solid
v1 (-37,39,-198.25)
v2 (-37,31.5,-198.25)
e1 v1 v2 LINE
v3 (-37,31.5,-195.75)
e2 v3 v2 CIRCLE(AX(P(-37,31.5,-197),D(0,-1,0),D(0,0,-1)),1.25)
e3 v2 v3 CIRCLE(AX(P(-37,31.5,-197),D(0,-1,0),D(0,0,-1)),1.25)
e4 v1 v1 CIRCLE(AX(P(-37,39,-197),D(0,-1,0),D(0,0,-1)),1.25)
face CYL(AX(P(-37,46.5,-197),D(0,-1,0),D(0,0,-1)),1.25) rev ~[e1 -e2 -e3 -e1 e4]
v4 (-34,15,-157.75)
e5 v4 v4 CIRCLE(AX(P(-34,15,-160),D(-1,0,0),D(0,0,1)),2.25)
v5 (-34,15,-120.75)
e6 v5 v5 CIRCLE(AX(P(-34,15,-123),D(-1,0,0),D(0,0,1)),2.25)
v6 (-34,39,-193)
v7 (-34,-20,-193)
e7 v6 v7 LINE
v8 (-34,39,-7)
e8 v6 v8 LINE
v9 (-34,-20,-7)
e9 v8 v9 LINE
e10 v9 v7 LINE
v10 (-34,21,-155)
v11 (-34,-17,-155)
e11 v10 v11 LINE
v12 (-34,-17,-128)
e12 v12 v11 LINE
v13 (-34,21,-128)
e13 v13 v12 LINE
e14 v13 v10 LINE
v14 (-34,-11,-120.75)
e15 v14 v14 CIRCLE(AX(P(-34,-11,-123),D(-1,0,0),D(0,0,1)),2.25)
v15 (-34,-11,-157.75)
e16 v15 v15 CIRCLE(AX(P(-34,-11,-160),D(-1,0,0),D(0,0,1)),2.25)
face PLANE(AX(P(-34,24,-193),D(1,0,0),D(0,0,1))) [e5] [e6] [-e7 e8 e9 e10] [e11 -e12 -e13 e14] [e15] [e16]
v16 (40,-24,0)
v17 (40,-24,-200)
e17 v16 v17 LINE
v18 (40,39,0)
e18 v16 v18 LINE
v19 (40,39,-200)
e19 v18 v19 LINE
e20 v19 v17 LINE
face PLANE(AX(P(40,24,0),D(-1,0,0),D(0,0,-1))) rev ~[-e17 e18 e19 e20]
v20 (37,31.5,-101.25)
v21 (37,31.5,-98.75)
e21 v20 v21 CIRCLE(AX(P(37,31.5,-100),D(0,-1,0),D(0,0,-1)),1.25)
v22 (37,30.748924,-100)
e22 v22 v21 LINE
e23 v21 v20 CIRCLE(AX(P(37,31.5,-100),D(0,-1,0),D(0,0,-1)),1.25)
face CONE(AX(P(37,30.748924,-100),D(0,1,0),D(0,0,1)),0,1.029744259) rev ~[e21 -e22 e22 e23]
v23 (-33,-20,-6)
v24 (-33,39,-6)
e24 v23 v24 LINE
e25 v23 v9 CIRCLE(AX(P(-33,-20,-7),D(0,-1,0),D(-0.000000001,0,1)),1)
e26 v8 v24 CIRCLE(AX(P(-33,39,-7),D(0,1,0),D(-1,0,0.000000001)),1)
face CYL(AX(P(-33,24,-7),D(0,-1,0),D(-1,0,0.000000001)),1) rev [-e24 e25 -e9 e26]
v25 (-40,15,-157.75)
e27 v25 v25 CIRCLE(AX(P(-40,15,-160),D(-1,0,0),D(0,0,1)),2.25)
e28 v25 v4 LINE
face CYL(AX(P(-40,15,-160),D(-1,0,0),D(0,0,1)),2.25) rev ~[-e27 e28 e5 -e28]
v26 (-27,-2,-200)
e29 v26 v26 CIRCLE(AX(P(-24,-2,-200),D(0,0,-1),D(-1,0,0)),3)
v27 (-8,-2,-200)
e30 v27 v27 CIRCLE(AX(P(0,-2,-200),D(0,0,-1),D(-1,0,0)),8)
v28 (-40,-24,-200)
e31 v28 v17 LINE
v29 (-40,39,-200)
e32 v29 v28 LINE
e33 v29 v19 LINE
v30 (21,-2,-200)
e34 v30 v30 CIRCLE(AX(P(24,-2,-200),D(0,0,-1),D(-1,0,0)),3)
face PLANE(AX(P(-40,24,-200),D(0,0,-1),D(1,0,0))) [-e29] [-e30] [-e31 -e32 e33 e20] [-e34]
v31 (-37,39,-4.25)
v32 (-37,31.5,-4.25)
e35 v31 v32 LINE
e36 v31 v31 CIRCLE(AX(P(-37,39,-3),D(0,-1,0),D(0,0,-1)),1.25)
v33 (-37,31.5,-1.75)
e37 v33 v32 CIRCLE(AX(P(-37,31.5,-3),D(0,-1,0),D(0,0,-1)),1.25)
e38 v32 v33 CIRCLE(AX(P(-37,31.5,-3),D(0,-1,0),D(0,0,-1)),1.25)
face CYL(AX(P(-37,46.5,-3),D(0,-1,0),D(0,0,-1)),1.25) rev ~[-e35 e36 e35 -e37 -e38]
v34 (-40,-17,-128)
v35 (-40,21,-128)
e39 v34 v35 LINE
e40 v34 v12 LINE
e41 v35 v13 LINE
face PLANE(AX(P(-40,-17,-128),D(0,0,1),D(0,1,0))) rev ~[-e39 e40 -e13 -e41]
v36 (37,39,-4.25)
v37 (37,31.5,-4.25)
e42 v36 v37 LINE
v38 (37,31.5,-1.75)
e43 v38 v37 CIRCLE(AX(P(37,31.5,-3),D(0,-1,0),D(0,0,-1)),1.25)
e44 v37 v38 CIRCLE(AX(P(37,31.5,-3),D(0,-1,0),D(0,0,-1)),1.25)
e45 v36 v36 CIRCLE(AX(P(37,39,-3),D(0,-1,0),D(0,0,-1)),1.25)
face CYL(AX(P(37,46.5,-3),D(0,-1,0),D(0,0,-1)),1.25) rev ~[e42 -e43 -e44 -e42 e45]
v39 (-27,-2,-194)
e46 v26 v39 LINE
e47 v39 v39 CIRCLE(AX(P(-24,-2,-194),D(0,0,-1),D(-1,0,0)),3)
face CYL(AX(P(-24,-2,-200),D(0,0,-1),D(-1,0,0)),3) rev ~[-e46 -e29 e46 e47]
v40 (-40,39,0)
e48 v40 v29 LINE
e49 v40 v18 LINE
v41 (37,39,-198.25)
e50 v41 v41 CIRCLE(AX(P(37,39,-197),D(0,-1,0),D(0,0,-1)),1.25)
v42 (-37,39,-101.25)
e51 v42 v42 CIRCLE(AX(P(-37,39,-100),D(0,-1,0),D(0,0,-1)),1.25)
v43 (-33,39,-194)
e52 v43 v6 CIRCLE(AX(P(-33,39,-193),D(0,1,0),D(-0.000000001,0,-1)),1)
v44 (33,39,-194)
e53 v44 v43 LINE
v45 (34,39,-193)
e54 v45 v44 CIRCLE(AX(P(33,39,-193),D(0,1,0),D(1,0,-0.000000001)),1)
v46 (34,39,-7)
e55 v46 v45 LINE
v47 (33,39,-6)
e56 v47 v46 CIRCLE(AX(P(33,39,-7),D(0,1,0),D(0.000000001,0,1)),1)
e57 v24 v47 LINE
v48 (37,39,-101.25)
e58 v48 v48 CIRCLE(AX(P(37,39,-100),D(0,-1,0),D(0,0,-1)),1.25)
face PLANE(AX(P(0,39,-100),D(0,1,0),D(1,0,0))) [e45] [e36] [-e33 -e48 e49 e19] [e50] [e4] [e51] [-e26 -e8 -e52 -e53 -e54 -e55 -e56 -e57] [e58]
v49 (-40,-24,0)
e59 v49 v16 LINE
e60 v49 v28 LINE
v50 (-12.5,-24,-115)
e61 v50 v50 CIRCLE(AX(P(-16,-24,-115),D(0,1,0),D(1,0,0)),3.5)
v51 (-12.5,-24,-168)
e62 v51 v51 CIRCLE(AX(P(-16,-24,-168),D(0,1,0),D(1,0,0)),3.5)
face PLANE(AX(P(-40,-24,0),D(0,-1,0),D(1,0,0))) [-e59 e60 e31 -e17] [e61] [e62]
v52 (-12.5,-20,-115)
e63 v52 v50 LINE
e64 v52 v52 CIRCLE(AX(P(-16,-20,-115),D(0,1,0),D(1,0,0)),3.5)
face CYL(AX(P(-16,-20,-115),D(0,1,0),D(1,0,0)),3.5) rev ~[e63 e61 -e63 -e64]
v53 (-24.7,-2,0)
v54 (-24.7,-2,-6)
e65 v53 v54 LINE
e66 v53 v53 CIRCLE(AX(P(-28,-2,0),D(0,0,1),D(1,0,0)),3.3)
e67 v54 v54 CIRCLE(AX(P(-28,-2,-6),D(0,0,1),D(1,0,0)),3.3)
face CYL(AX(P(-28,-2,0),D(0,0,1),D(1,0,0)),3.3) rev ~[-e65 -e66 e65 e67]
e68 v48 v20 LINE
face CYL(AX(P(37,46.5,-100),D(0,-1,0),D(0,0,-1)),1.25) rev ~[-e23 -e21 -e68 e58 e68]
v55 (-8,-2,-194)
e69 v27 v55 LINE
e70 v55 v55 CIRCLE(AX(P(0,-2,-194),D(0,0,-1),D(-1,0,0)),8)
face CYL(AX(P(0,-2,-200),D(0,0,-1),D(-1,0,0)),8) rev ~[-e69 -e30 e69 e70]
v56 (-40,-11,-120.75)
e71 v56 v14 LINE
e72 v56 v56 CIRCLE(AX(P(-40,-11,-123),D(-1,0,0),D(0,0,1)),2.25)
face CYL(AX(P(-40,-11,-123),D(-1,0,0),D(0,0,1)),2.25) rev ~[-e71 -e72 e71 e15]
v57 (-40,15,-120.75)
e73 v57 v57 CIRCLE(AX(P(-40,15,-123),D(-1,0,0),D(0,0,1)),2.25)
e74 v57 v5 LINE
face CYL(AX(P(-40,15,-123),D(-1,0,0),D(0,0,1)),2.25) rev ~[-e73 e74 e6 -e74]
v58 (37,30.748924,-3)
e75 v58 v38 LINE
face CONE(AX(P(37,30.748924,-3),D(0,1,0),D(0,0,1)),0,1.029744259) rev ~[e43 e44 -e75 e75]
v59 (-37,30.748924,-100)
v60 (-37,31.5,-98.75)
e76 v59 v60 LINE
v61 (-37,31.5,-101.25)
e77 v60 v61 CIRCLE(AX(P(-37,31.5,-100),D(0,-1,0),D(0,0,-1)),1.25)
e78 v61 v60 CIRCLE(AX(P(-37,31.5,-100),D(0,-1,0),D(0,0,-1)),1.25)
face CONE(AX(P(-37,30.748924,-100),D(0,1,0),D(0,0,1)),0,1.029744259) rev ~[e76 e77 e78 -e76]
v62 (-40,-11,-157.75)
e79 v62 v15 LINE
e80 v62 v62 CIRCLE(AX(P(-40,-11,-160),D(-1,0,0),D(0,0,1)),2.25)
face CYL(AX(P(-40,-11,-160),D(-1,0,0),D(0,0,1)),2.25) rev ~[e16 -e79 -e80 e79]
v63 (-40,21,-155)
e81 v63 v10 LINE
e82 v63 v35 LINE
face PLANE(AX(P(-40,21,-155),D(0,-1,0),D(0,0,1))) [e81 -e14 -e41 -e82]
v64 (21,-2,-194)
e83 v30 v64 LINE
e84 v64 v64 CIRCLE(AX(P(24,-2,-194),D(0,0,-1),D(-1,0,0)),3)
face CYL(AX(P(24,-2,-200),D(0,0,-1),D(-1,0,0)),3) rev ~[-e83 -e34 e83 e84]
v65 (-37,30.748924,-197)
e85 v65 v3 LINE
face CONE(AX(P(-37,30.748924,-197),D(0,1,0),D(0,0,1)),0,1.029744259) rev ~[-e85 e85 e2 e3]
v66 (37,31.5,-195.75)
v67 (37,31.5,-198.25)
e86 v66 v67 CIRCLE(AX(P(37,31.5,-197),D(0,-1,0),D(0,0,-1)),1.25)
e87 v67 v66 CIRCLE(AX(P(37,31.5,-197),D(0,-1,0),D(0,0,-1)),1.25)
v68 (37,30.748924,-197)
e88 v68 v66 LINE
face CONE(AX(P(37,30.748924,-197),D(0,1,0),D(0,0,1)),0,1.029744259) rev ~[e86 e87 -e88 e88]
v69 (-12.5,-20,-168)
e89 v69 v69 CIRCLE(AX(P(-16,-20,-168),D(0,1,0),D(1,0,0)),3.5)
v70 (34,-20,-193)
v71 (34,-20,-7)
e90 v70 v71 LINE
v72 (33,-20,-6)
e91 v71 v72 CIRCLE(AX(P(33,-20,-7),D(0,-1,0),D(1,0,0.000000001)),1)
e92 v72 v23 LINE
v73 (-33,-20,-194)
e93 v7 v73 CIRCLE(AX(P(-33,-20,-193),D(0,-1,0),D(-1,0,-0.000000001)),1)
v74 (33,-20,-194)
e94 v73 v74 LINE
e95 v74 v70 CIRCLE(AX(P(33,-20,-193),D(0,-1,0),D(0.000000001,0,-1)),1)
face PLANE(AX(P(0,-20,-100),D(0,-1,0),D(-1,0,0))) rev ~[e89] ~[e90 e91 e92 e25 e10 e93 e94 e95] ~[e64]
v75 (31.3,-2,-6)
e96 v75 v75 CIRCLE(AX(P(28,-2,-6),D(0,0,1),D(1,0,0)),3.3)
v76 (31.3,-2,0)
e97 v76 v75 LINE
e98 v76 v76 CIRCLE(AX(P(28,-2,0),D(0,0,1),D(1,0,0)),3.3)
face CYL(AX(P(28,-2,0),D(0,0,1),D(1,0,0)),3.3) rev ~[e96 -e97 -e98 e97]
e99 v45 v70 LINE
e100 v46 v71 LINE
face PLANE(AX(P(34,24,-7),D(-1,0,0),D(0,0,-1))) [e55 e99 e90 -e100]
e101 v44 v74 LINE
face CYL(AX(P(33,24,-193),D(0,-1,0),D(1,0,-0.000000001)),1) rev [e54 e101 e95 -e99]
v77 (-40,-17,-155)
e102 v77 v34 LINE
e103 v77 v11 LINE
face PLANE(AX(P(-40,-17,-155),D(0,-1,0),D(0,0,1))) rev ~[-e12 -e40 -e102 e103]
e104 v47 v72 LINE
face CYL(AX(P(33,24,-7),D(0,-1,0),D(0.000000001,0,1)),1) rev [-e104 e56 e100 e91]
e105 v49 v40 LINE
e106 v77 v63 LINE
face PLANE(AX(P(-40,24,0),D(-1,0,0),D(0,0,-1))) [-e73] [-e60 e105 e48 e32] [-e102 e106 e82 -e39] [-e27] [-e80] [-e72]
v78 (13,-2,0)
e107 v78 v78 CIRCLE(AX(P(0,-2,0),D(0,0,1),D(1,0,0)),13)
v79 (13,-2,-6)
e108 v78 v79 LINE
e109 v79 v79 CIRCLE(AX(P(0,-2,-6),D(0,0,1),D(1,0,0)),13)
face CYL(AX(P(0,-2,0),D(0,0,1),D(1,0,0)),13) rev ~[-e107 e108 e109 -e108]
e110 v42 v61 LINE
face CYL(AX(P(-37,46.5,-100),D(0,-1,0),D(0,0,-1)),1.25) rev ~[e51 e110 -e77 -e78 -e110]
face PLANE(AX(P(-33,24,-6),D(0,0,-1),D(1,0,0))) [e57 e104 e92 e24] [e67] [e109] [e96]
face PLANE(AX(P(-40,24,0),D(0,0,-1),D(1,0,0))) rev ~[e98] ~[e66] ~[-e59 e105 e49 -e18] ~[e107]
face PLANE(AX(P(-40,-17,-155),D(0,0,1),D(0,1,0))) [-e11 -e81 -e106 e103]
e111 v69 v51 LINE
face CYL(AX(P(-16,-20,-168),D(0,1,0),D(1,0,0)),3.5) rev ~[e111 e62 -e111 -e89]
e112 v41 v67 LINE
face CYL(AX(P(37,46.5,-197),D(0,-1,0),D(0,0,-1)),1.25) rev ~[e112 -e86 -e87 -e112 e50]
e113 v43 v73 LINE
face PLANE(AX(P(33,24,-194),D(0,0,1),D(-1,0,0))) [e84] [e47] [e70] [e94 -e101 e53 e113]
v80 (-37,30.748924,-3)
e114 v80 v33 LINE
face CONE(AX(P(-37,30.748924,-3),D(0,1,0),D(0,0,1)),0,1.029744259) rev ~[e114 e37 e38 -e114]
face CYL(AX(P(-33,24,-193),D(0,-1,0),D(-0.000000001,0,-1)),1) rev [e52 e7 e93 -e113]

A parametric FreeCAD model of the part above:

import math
import FreeCAD as App
import Part
import Sketcher

V = App.Vector
Q = App.Units.Quantity


def add_polygon(sketch, points):
    """Adds a closed chain of lines whose ends are joined by coincident constraints."""
    first, n = sketch.GeometryCount, len(points)
    for a, b in zip(points, points[1:] + points[:1]):
        sketch.addGeometry(Part.LineSegment(App.Vector(*a, 0), App.Vector(*b, 0)), False)
    for i in range(n):
        sketch.addConstraint(Sketcher.Constraint("Coincident", first + i, 2, first + (i + 1) % n, 1))

doc = App.newDocument("Part")
body = doc.addObject("PartDesign::Body", "Body")

# Sketch on XY plane
sketch1 = body.newObject("Sketcher::SketchObject", "Sketch")
sketch1.AttachmentSupport = (doc.getObject("XY_Plane"), [""])
sketch1.MapMode = "FlatFace"
add_polygon(sketch1, [(-40, 24), (-40, -24), (40, -24), (40, 24)])  # lines 0-3
sketch1.addConstraint([
    Sketcher.Constraint("Vertical", 0),
    Sketcher.Constraint("Horizontal", 1),
    Sketcher.Constraint("Vertical", 2),
    Sketcher.Constraint("Horizontal", 3),
    Sketcher.Constraint("Symmetric", 0, 2, 2, 2, -1, 1),
    Sketcher.Constraint("DistanceX", 1, 1, 1, 2, Q("80 mm")),
    Sketcher.Constraint("DistanceY", 0, 2, 0, 1, Q("48 mm")),
])
pad1 = body.newObject("PartDesign::Pad", "Pad")
pad1.Profile = sketch1
pad1.Length = 200
pad1.Reversed = True

# Sketch on XZ plane
sketch2 = body.newObject("Sketcher::SketchObject", "Sketch001")
sketch2.AttachmentSupport = (doc.getObject("XZ_Plane"), [""])
sketch2.MapMode = "FlatFace"
sketch2.AttachmentOffset = App.Placement(V(0, 0, -24), App.Rotation())
sketch2.addGeometry([
    Part.ArcOfCircle(Part.Circle(V(-33, -193, 0), V(0, 0, 1), 1), math.radians(-180), math.radians(-90)),  # 0
    Part.LineSegment(V(-34, -193, 0), V(-34, -7, 0)),  # 1
    Part.ArcOfCircle(Part.Circle(V(-33, -7, 0), V(0, 0, 1), 1), math.radians(90), math.radians(180)),  # 2
    Part.LineSegment(V(-33, -6, 0), V(33, -6, 0)),  # 3
    Part.ArcOfCircle(Part.Circle(V(33, -7, 0), V(0, 0, 1), 1), math.radians(0), math.radians(90)),  # 4
    Part.LineSegment(V(34, -7, 0), V(34, -193, 0)),  # 5
    Part.ArcOfCircle(Part.Circle(V(33, -193, 0), V(0, 0, 1), 1), math.radians(-90), math.radians(0)),  # 6
    Part.LineSegment(V(33, -194, 0), V(-33, -194, 0)),  # 7
], False)
sketch2.addConstraint([
    Sketcher.Constraint("Tangent", 0, 1, 1, 1),
    Sketcher.Constraint("Tangent", 1, 2, 2, 2),
    Sketcher.Constraint("Tangent", 2, 1, 3, 1),
    Sketcher.Constraint("Tangent", 3, 2, 4, 2),
    Sketcher.Constraint("Tangent", 4, 1, 5, 1),
    Sketcher.Constraint("Tangent", 5, 2, 6, 2),
    Sketcher.Constraint("Tangent", 6, 1, 7, 1),
    Sketcher.Constraint("Tangent", 7, 2, 0, 2),
    Sketcher.Constraint("Vertical", 1),
    Sketcher.Constraint("Horizontal", 3),
    Sketcher.Constraint("Vertical", 5),
    Sketcher.Constraint("Horizontal", 7),
    Sketcher.Constraint("Equal", 0, 2),
    Sketcher.Constraint("Equal", 2, 4),
    Sketcher.Constraint("Equal", 4, 6),
    Sketcher.Constraint("Radius", 0, Q("1 mm")),
    Sketcher.Constraint("DistanceX", 3, 1, 3, 2, Q("66 mm")),
    Sketcher.Constraint("DistanceY", 1, 1, 1, 2, Q("186 mm")),
    Sketcher.Constraint("DistanceX", 0, 3, -1, 1, Q("33 mm")),
    Sketcher.Constraint("DistanceY", 0, 3, -1, 1, Q("193 mm")),
])
pocket1 = body.newObject("PartDesign::Pocket", "Pocket")
pocket1.Profile = sketch2
pocket1.Length = 44
pocket1.Reversed = True

# Sketch on XY plane
sketch3 = body.newObject("Sketcher::SketchObject", "Sketch002")
sketch3.AttachmentSupport = (doc.getObject("XY_Plane"), [""])
sketch3.MapMode = "FlatFace"
sketch3.addGeometry([
    Part.Circle(V(-28, -2, 0), V(0, 0, 1), 3.3),
    Part.Circle(V(0, -2, 0), V(0, 0, 1), 13),
    Part.Circle(V(28, -2, 0), V(0, 0, 1), 3.3),
], False)
sketch3.addConstraint([
    Sketcher.Constraint("Equal", 0, 2),
    Sketcher.Constraint("Symmetric", 0, 3, 2, 3, -2),
    Sketcher.Constraint("PointOnObject", 1, 3, -2),
    Sketcher.Constraint("Horizontal", 0, 3, 1, 3),
    Sketcher.Constraint("Diameter", 1, Q("26 mm")),
    Sketcher.Constraint("Diameter", 0, Q("6.6 mm")),
    Sketcher.Constraint("DistanceX", 0, 3, -1, 1, Q("28 mm")),
    Sketcher.Constraint("DistanceY", 0, 3, -1, 1, Q("2 mm")),
])
pocket2 = body.newObject("PartDesign::Pocket", "Pocket001")
pocket2.Profile = sketch3
pocket2.Length = 10

# Sketch on YZ plane
sketch4 = body.newObject("Sketcher::SketchObject", "Sketch003")
sketch4.AttachmentSupport = (doc.getObject("YZ_Plane"), [""])
sketch4.MapMode = "FlatFace"
sketch4.AttachmentOffset = App.Placement(V(0, 0, -40), App.Rotation())
sketch4.addGeometry(Part.Circle(V(-11, -123, 0), V(0, 0, 1), 2.25), False)  # 0
sketch4.addGeometry(Part.Circle(V(15, -123, 0), V(0, 0, 1), 2.25), False)  # 1
sketch4.addGeometry(Part.Circle(V(15, -160, 0), V(0, 0, 1), 2.25), False)  # 2
sketch4.addGeometry(Part.Circle(V(-11, -160, 0), V(0, 0, 1), 2.25), False)  # 3
add_polygon(sketch4, [(21, -155), (-17, -155), (-17, -128), (21, -128)])  # lines 4-7
sketch4.addConstraint([
    Sketcher.Constraint("Horizontal", 4),
    Sketcher.Constraint("Vertical", 5),
    Sketcher.Constraint("Horizontal", 6),
    Sketcher.Constraint("Vertical", 7),
    Sketcher.Constraint("Equal", 0, 1),
    Sketcher.Constraint("Equal", 1, 2),
    Sketcher.Constraint("Equal", 2, 3),
    Sketcher.Constraint("Horizontal", 0, 3, 1, 3),
    Sketcher.Constraint("Horizontal", 2, 3, 3, 3),
    Sketcher.Constraint("Vertical", 1, 3, 2, 3),
    Sketcher.Constraint("Vertical", 0, 3, 3, 3),
    Sketcher.Constraint("Diameter", 0, Q("4.5 mm")),
    Sketcher.Constraint("DistanceX", 4, 2, 4, 1, Q("38 mm")),
    Sketcher.Constraint("DistanceY", 5, 1, 5, 2, Q("27 mm")),
    Sketcher.Constraint("DistanceX", 0, 3, -1, 1, Q("11 mm")),
    Sketcher.Constraint("DistanceY", 0, 3, -1, 1, Q("123 mm")),
    Sketcher.Constraint("DistanceX", -1, 1, 1, 3, Q("15 mm")),
    Sketcher.Constraint("DistanceY", 2, 3, -1, 1, Q("160 mm")),
    Sketcher.Constraint("DistanceX", 4, 2, -1, 1, Q("17 mm")),
    Sketcher.Constraint("DistanceY", 4, 2, -1, 1, Q("155 mm")),
])
pocket3 = body.newObject("PartDesign::Pocket", "Pocket002")
pocket3.Profile = sketch4
pocket3.Length = 10
pocket3.Reversed = True

# Sketch on XY plane
sketch5 = body.newObject("Sketcher::SketchObject", "Sketch004")
sketch5.AttachmentSupport = (doc.getObject("XY_Plane"), [""])
sketch5.MapMode = "FlatFace"
sketch5.AttachmentOffset = App.Placement(V(0, 0, -200), App.Rotation())
sketch5.addGeometry([
    Part.Circle(V(0, -2, 0), V(0, 0, 1), 8),
    Part.Circle(V(-24, -2, 0), V(0, 0, 1), 3),
    Part.Circle(V(24, -2, 0), V(0, 0, 1), 3),
], False)
sketch5.addConstraint([
    Sketcher.Constraint("Equal", 1, 2),
    Sketcher.Constraint("Symmetric", 1, 3, 2, 3, -2),
    Sketcher.Constraint("PointOnObject", 0, 3, -2),
    Sketcher.Constraint("Horizontal", 0, 3, 1, 3),
    Sketcher.Constraint("Diameter", 0, Q("16 mm")),
    Sketcher.Constraint("Diameter", 1, Q("6 mm")),
    Sketcher.Constraint("DistanceY", 0, 3, -1, 1, Q("2 mm")),
    Sketcher.Constraint("DistanceX", 1, 3, -1, 1, Q("24 mm")),
])
pocket4 = body.newObject("PartDesign::Pocket", "Pocket003")
pocket4.Profile = sketch5
pocket4.Length = 10
pocket4.Reversed = True

# Sketch on XZ plane
sketch6 = body.newObject("Sketcher::SketchObject", "Sketch005")
sketch6.AttachmentSupport = (doc.getObject("XZ_Plane"), [""])
sketch6.MapMode = "FlatFace"
sketch6.AttachmentOffset = App.Placement(V(0, 0, 20), App.Rotation())
sketch6.addGeometry([
    Part.Circle(V(-16, -168, 0), V(0, 0, 1), 3.5),
    Part.Circle(V(-16, -115, 0), V(0, 0, 1), 3.5),
], False)
sketch6.addConstraint([
    Sketcher.Constraint("Equal", 0, 1),
    Sketcher.Constraint("Vertical", 0, 3, 1, 3),
    Sketcher.Constraint("Diameter", 0, Q("7 mm")),
    Sketcher.Constraint("DistanceX", 0, 3, -1, 1, Q("16 mm")),
    Sketcher.Constraint("DistanceY", 0, 3, -1, 1, Q("168 mm")),
    Sketcher.Constraint("DistanceY", 1, 3, -1, 1, Q("115 mm")),
])
pocket5 = body.newObject("PartDesign::Pocket", "Pocket004")
pocket5.Profile = sketch6
pocket5.Length = 10
pocket5.Reversed = True

# Sketch on XZ plane
sketch7 = body.newObject("Sketcher::SketchObject", "Sketch006")
sketch7.AttachmentSupport = (doc.getObject("XZ_Plane"), [""])
sketch7.MapMode = "FlatFace"
sketch7.AttachmentOffset = App.Placement(V(0, 0, -24), App.Rotation())
add_polygon(sketch7, [(-40, -200), (-40, 0), (40, 0), (40, -200)])  # lines 0-3
sketch7.addGeometry(Part.LineSegment(V(33, -6, 0), V(-33, -6, 0)), False)  # 4
sketch7.addGeometry(Part.ArcOfCircle(Part.Circle(V(-33, -7, 0), V(0, 0, 1), 1), math.radians(90), math.radians(180)), False)  # 5
sketch7.addGeometry(Part.LineSegment(V(-34, -7, 0), V(-34, -193, 0)), False)  # 6
sketch7.addGeometry(Part.ArcOfCircle(Part.Circle(V(-33, -193, 0), V(0, 0, 1), 1), math.radians(-180), math.radians(-90)), False)  # 7
sketch7.addGeometry(Part.LineSegment(V(-33, -194, 0), V(33, -194, 0)), False)  # 8
sketch7.addGeometry(Part.ArcOfCircle(Part.Circle(V(33, -193, 0), V(0, 0, 1), 1), math.radians(-90), math.radians(0)), False)  # 9
sketch7.addGeometry(Part.LineSegment(V(34, -193, 0), V(34, -7, 0)), False)  # 10
sketch7.addGeometry(Part.ArcOfCircle(Part.Circle(V(33, -7, 0), V(0, 0, 1), 1), math.radians(0), math.radians(90)), False)  # 11
sketch7.addConstraint([
    Sketcher.Constraint("Tangent", 4, 2, 5, 1),
    Sketcher.Constraint("Tangent", 5, 2, 6, 1),
    Sketcher.Constraint("Tangent", 6, 2, 7, 1),
    Sketcher.Constraint("Tangent", 7, 2, 8, 1),
    Sketcher.Constraint("Tangent", 8, 2, 9, 1),
    Sketcher.Constraint("Tangent", 9, 2, 10, 1),
    Sketcher.Constraint("Tangent", 10, 2, 11, 1),
    Sketcher.Constraint("Tangent", 11, 2, 4, 1),
    Sketcher.Constraint("Vertical", 0),
    Sketcher.Constraint("Horizontal", 1),
    Sketcher.Constraint("Vertical", 2),
    Sketcher.Constraint("Horizontal", 3),
    Sketcher.Constraint("Horizontal", 4),
    Sketcher.Constraint("Vertical", 6),
    Sketcher.Constraint("Horizontal", 8),
    Sketcher.Constraint("Vertical", 10),
    Sketcher.Constraint("Equal", 5, 7),
    Sketcher.Constraint("Equal", 7, 9),
    Sketcher.Constraint("Equal", 9, 11),
    Sketcher.Constraint("Symmetric", 0, 2, 1, 2, -1, 1),
    Sketcher.Constraint("Radius", 5, Q("1 mm")),
    Sketcher.Constraint("DistanceX", 1, 1, 1, 2, Q("80 mm")),
    Sketcher.Constraint("DistanceX", 4, 2, 4, 1, Q("66 mm")),
    Sketcher.Constraint("DistanceY", 0, 1, 0, 2, Q("200 mm")),
    Sketcher.Constraint("DistanceY", 6, 2, 6, 1, Q("186 mm")),
    Sketcher.Constraint("DistanceX", 5, 3, -1, 1, Q("33 mm")),
    Sketcher.Constraint("DistanceY", 5, 3, -1, 1, Q("7 mm")),
])
pad2 = body.newObject("PartDesign::Pad", "Pad001")
pad2.Profile = sketch7
pad2.Length = 15
pad2.Reversed = True

# Sketch on XZ plane
sketch8 = body.newObject("Sketcher::SketchObject", "Sketch007")
sketch8.AttachmentSupport = (doc.getObject("XZ_Plane"), [""])
sketch8.MapMode = "FlatFace"
sketch8.AttachmentOffset = App.Placement(V(0, 0, -39), App.Rotation())
sketch8.addGeometry([
    Part.Circle(V(-37, -100, 0), V(0, 0, 1), 1.25),  # 0
    Part.Circle(V(37, -100, 0), V(0, 0, 1), 1.25),  # 1
    Part.Circle(V(37, -3, 0), V(0, 0, 1), 1.25),  # 2
    Part.Circle(V(-37, -3, 0), V(0, 0, 1), 1.25),  # 3
    Part.Circle(V(-37, -197, 0), V(0, 0, 1), 1.25),  # 4
    Part.Circle(V(37, -197, 0), V(0, 0, 1), 1.25),  # 5
], False)
sketch8.addConstraint([
    Sketcher.Constraint("Equal", 0, 1),
    Sketcher.Constraint("Equal", 1, 2),
    Sketcher.Constraint("Equal", 2, 3),
    Sketcher.Constraint("Equal", 3, 4),
    Sketcher.Constraint("Equal", 4, 5),
    Sketcher.Constraint("Symmetric", 0, 3, 1, 3, -2),
    Sketcher.Constraint("Symmetric", 2, 3, 3, 3, -2),
    Sketcher.Constraint("Symmetric", 4, 3, 5, 3, -2),
    Sketcher.Constraint("Vertical", 1, 3, 2, 3),
    Sketcher.Constraint("Vertical", 3, 3, 4, 3),
    Sketcher.Constraint("Diameter", 0, Q("2.5 mm")),
    Sketcher.Constraint("DistanceX", 0, 3, -1, 1, Q("37 mm")),
    Sketcher.Constraint("DistanceY", 0, 3, -1, 1, Q("100 mm")),
    Sketcher.Constraint("DistanceY", 2, 3, -1, 1, Q("3 mm")),
    Sketcher.Constraint("DistanceY", 4, 3, -1, 1, Q("197 mm")),
])
doc.recompute()
hole = body.newObject("PartDesign::Hole", "Hole")
hole.Profile = sketch8
hole.ThreadType = "None"
hole.Diameter = 2.5
hole.DepthType = "Dimension"
hole.Depth = 7.5
hole.DrillPoint = "Angled"
hole.DrillPointAngle = 118
hole.Reversed = True

doc.recompute()
